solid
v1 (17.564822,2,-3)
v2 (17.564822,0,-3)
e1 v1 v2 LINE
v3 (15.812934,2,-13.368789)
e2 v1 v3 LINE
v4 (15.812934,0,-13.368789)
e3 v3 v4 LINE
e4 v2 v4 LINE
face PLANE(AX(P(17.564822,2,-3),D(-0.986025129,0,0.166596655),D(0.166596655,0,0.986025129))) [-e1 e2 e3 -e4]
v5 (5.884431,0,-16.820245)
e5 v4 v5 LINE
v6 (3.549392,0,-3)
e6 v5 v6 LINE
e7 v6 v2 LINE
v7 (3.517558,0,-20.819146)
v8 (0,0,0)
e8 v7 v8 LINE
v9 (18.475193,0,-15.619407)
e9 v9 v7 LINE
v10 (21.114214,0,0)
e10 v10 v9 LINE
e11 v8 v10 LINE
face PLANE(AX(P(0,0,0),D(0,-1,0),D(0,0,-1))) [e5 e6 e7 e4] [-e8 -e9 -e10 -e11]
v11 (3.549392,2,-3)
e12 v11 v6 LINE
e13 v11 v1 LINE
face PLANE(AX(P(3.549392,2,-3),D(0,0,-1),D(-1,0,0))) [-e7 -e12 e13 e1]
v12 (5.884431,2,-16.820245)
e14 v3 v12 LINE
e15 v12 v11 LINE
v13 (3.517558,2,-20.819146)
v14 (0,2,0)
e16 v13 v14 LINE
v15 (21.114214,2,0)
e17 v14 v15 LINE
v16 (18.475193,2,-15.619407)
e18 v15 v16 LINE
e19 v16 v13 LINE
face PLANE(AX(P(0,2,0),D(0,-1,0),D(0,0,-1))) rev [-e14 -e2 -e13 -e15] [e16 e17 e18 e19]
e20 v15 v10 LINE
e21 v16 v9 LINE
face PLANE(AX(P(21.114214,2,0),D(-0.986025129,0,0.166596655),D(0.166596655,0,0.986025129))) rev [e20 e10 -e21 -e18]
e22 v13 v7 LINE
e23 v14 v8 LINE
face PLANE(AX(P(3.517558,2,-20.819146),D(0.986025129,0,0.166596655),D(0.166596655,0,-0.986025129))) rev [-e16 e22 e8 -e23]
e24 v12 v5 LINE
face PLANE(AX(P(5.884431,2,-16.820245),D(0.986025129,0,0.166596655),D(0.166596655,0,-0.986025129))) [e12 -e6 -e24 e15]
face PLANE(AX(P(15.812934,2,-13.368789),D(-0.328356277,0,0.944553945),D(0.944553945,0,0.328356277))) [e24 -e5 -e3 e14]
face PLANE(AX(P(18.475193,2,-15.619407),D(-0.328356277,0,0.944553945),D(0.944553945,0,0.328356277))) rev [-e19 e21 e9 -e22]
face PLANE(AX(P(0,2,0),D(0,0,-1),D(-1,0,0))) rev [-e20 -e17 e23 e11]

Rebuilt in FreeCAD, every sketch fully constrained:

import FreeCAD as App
import Part
import Sketcher
from FreeCAD import Vector
Q = App.Units.Quantity


def add_polygon(sketch, points):
    """Adds a closed chain of lines whose ends are joined by coincident constraints."""
    first, n = sketch.GeometryCount, len(points)
    for a, b in zip(points, points[1:] + points[:1]):
        sketch.addGeometry(Part.LineSegment(App.Vector(*a, 0), App.Vector(*b, 0)), False)
    for i in range(n):
        sketch.addConstraint(Sketcher.Constraint("Coincident", first + i, 2, first + (i + 1) % n, 1))

doc = App.newDocument("Part")
body = doc.addObject("PartDesign::Body", "Body")

# Sketch on XZ plane
sketch1 = body.newObject("Sketcher::SketchObject", "Sketch")
sketch1.AttachmentSupport = (doc.getObject("XZ_Plane"), [""])
sketch1.MapMode = "FlatFace"
add_polygon(sketch1, [(0, 0), (21, 0), (18, -16), (4, -21)])  # lines 0-3
add_polygon(sketch1, [(4, -3), (6, -17), (16, -13), (18, -3)])  # lines 4-7
sketch1.addConstraint([
    Sketcher.Constraint("Horizontal", 0),
    Sketcher.Constraint("Horizontal", 7),
    Sketcher.Constraint("Coincident", 3, 2, -1, 1),
    Sketcher.Constraint("Parallel", 3, 4),
    Sketcher.Constraint("Parallel", 2, 5),
    Sketcher.Constraint("Parallel", 1, 6),
    Sketcher.Constraint("DistanceY", 6, 2, -1, 1, 3.0),
    Sketcher.Constraint("Angle", 1, Q("-99.59 deg")),
    Sketcher.Constraint("Angle", 3, Q("99.59 deg")),
    Sketcher.Constraint("DistanceX", 7, 2, 7, 1, 14.01543),
    Sketcher.Constraint("DistanceY", 2, 2, 4, 2, 3.998901),
    Sketcher.Constraint("Distance", 1, 15.84078),
    Sketcher.Constraint("Distance", 2, 15.835661),
    Sketcher.Constraint("Distance", 4, 14.016119),
    Sketcher.Constraint("DistanceX", -1, 1, 4, 2, 5.884431),
])
pad1 = body.newObject("PartDesign::Pad", "Pad")
pad1.Profile = sketch1
pad1.Length = 2
pad1.Reversed = True

doc.recompute()
